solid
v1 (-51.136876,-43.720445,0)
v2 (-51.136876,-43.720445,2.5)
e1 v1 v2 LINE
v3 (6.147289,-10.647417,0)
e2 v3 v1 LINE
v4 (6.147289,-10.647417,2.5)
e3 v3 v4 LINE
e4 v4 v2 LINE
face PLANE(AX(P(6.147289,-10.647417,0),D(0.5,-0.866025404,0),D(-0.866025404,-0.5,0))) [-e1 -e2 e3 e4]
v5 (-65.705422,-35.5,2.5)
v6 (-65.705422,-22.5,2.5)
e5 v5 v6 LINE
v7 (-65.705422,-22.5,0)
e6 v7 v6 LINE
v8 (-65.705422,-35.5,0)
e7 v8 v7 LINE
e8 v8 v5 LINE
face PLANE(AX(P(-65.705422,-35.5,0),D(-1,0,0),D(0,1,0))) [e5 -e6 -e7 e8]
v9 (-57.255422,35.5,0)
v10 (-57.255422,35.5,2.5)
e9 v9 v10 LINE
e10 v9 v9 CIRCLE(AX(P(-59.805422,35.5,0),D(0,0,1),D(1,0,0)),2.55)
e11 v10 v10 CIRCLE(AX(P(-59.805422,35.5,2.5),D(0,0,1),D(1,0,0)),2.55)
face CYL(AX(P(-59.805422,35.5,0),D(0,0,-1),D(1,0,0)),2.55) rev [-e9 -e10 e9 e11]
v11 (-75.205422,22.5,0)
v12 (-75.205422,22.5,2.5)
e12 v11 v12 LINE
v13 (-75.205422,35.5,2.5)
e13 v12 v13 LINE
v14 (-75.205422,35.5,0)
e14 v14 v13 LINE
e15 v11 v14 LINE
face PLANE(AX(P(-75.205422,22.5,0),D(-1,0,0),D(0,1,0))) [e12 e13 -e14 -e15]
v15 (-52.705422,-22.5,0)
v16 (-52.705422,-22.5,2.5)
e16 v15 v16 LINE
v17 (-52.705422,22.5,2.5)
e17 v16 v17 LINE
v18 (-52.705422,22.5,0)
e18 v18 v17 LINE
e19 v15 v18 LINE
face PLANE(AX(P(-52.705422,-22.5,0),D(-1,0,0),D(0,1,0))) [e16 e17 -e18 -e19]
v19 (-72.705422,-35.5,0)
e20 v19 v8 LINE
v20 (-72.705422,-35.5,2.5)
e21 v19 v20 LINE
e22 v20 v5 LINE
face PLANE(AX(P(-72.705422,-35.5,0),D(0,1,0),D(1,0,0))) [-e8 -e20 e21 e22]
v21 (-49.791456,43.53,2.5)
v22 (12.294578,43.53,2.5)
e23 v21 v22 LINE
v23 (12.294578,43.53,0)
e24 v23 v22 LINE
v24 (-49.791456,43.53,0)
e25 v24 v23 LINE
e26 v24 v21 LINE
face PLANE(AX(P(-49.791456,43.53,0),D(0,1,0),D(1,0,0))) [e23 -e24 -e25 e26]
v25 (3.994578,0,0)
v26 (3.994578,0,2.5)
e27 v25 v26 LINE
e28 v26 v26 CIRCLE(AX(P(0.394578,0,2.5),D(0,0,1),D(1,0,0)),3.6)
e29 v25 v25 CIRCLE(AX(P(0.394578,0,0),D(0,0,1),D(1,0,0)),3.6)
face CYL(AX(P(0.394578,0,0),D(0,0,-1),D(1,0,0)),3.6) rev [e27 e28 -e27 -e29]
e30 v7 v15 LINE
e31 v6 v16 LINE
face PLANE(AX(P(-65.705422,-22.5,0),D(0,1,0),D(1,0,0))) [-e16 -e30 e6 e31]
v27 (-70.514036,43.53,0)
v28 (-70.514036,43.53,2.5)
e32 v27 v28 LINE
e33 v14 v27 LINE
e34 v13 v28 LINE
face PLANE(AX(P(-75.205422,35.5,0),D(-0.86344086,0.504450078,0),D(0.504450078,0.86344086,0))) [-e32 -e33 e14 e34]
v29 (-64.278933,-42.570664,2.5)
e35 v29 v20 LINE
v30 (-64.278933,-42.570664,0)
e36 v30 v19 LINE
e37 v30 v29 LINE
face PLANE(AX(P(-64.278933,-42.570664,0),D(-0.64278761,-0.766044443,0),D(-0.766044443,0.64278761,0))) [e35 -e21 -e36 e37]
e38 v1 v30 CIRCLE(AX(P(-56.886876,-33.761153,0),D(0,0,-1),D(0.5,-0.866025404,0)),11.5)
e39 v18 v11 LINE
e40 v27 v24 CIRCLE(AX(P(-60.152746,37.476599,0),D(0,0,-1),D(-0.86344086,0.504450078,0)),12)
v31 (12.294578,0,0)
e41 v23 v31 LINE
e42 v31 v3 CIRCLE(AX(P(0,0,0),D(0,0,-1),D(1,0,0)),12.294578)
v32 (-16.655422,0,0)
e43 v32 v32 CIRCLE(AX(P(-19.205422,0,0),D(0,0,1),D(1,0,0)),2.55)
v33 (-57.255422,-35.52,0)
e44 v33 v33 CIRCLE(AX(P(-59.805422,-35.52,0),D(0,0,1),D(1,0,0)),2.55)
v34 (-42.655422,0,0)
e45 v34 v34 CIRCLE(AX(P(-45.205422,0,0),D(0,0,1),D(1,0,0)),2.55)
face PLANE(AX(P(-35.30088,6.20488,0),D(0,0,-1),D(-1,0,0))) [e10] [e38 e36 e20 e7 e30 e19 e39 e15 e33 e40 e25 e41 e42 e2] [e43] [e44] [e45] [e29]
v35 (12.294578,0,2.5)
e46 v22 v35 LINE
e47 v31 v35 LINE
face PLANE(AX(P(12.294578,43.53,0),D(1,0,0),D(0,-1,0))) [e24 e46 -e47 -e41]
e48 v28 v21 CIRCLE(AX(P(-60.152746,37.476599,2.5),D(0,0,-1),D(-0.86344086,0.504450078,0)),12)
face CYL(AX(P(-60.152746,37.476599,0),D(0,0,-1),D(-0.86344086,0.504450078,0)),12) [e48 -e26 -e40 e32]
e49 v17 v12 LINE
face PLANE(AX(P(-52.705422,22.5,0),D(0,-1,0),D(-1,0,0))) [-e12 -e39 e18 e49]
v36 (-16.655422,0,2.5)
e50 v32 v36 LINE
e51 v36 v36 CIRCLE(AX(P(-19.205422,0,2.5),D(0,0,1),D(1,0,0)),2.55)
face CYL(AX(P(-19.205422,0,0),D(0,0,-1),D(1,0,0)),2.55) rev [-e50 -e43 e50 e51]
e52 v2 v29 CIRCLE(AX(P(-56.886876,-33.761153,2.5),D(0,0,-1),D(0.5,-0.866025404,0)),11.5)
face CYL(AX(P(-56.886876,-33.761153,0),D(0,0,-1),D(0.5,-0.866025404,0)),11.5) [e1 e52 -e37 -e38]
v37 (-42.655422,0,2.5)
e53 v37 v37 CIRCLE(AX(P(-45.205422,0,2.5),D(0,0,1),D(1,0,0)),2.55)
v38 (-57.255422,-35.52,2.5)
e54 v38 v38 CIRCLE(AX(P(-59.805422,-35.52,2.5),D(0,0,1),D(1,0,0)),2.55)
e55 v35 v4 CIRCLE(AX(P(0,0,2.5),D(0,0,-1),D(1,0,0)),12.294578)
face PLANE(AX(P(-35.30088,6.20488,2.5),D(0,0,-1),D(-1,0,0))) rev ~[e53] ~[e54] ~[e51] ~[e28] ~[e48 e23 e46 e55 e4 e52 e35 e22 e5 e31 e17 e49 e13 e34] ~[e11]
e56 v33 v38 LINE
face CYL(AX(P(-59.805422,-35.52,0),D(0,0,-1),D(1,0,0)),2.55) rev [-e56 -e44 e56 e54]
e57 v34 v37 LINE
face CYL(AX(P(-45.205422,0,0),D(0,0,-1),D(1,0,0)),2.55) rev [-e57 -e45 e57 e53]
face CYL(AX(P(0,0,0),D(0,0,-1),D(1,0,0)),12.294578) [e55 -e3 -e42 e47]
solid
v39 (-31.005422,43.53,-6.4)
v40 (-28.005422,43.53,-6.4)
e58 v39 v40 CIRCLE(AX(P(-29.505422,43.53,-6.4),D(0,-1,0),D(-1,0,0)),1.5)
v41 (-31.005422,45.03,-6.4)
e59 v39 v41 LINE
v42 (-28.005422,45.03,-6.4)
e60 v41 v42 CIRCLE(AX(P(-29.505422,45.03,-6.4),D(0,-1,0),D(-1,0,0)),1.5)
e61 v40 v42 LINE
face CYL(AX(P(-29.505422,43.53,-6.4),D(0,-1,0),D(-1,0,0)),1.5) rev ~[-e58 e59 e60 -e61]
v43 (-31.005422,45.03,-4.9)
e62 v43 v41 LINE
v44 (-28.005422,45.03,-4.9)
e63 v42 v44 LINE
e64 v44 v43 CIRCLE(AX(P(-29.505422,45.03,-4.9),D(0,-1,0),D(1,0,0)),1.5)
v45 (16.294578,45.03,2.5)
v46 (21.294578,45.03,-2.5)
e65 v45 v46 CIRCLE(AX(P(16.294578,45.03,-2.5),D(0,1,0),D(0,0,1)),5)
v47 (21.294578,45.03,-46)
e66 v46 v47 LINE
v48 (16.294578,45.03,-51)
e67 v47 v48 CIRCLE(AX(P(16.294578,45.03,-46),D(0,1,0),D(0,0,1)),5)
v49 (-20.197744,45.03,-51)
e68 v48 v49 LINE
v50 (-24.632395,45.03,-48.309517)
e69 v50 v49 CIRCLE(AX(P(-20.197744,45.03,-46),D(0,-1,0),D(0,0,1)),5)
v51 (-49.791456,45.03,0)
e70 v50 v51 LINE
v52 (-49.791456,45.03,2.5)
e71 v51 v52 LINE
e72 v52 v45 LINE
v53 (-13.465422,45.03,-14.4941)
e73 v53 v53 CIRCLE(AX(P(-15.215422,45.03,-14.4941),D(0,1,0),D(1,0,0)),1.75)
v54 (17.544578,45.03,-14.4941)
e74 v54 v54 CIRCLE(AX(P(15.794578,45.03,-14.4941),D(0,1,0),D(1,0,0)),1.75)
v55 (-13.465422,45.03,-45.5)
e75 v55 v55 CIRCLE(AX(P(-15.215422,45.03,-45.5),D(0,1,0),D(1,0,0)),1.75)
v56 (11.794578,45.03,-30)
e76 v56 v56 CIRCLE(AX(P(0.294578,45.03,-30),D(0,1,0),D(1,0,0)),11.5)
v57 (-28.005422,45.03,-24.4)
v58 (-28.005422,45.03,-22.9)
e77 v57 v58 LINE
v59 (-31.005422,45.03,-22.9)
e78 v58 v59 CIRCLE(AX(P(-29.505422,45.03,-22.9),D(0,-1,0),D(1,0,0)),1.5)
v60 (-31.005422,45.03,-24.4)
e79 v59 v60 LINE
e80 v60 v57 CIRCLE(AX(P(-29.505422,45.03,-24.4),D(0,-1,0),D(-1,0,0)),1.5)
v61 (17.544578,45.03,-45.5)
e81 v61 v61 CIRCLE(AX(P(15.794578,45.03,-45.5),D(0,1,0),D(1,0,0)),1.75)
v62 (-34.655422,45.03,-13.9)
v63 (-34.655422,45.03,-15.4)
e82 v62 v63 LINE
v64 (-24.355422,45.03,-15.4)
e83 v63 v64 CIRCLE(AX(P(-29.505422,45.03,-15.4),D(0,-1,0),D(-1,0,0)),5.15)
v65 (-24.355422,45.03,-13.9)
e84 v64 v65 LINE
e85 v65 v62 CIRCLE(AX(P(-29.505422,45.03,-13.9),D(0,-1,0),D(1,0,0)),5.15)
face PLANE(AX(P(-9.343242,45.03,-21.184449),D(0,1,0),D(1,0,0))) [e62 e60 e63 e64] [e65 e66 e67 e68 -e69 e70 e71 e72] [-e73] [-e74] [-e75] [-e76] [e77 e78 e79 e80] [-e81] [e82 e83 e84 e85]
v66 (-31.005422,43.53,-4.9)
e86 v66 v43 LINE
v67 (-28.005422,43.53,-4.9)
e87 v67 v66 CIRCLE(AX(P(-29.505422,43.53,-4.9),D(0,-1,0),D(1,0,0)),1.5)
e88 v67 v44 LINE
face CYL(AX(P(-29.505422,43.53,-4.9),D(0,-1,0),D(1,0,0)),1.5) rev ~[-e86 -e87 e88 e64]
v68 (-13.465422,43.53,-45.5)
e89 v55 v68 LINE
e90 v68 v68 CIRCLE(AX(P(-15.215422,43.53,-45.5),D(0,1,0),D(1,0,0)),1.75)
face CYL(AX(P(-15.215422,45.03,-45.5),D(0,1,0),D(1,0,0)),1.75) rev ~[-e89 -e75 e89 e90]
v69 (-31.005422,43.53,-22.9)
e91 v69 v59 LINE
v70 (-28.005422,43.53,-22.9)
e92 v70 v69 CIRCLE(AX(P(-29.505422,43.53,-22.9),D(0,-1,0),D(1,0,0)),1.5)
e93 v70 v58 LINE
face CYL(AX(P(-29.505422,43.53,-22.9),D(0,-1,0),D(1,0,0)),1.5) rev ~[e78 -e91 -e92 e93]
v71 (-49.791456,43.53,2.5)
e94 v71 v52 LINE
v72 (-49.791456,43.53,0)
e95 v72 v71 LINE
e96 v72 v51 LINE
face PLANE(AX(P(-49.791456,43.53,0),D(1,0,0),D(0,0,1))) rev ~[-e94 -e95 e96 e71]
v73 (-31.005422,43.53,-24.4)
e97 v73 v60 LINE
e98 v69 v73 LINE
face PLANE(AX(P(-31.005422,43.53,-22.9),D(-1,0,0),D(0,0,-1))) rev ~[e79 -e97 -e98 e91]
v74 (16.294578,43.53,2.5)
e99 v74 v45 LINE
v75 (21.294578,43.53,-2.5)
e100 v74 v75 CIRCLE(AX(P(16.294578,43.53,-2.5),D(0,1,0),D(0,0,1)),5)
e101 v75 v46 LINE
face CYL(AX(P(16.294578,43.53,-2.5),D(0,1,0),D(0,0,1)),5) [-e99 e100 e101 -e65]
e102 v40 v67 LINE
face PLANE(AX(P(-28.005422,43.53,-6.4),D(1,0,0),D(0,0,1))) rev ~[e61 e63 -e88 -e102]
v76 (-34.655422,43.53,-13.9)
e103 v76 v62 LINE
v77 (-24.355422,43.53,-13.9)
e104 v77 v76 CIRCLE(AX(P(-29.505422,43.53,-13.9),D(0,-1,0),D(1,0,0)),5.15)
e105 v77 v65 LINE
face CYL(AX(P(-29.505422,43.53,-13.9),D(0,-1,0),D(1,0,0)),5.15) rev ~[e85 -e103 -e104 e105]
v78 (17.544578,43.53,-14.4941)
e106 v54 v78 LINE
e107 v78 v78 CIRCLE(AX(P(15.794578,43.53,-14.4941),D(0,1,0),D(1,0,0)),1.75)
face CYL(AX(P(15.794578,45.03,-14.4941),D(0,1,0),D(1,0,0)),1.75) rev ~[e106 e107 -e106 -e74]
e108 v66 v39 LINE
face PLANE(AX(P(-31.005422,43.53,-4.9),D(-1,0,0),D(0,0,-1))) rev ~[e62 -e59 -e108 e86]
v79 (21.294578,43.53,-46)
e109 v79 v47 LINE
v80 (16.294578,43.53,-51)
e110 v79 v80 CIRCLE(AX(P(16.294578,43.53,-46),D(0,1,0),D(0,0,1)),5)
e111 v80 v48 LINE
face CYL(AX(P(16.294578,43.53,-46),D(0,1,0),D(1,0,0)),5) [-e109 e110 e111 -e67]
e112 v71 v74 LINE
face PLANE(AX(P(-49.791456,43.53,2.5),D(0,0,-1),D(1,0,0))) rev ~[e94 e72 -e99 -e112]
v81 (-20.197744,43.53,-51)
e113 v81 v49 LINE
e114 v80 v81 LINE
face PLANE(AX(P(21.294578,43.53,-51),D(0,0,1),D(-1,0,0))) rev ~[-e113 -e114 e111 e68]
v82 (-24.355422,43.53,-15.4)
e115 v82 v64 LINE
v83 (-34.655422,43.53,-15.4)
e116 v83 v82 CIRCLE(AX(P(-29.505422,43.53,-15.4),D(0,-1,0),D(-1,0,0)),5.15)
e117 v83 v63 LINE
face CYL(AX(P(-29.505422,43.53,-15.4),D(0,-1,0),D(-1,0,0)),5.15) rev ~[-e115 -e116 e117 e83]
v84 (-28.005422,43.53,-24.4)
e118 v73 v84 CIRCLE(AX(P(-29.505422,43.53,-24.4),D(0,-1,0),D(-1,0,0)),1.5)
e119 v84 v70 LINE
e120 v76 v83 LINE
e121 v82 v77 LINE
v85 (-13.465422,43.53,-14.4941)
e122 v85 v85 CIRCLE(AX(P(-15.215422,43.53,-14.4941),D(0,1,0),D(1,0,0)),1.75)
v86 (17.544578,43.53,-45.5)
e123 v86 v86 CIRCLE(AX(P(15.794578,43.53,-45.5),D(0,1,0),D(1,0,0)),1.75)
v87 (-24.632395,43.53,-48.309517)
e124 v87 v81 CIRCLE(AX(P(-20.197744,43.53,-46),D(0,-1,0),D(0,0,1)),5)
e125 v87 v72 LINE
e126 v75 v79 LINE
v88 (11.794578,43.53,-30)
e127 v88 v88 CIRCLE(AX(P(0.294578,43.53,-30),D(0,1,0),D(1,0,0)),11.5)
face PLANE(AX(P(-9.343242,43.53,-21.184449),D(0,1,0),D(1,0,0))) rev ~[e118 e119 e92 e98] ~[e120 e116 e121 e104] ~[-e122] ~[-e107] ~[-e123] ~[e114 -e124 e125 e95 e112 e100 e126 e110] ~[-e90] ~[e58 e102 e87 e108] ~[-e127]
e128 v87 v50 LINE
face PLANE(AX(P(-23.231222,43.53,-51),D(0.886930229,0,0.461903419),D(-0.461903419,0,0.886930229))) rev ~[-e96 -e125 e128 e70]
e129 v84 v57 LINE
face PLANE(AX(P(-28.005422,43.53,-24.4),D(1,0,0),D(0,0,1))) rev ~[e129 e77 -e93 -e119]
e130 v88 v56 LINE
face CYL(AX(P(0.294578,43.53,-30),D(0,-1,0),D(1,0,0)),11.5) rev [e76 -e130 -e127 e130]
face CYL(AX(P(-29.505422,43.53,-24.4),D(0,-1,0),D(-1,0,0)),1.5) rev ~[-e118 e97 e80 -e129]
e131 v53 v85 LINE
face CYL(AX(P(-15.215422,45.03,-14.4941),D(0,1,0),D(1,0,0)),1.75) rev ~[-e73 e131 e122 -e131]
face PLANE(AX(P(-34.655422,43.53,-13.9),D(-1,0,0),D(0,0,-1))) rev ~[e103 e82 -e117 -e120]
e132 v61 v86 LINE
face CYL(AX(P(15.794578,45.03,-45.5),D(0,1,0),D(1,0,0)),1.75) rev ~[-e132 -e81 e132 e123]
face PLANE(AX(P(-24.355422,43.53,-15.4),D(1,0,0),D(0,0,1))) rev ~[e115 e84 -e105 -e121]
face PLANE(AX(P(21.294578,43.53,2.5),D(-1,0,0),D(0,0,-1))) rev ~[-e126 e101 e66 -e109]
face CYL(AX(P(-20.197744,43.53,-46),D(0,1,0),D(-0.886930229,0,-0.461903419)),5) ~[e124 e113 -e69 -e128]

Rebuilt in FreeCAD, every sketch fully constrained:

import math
import FreeCAD as App
import Part
import Sketcher

V = App.Vector
Q = App.Units.Quantity


def edges_at(feature, points):
    """Names of the edges that pass closest to the given points."""
    edges = feature.Shape.Edges
    near = lambda p: min(range(len(edges)), key=lambda i: edges[i].distToShape(Part.Vertex(*p))[0])
    return sorted({f"Edge{near(p) + 1}" for p in points})


def add_polygon(sketch, points):
    """Adds a closed chain of lines whose ends are joined by coincident constraints."""
    first, n = sketch.GeometryCount, len(points)
    for a, b in zip(points, points[1:] + points[:1]):
        sketch.addGeometry(Part.LineSegment(App.Vector(*a, 0), App.Vector(*b, 0)), False)
    for i in range(n):
        sketch.addConstraint(Sketcher.Constraint("Coincident", first + i, 2, first + (i + 1) % n, 1))

doc = App.newDocument("Part")
body = doc.addObject("PartDesign::Body", "Body")

sketch1 = body.newObject("Sketcher::SketchObject", "Sketch")
sketch1.AttachmentSupport = (doc.getObject("XY_Plane"), [""])
sketch1.MapMode = "FlatFace"
sketch1.addGeometry([
    Part.LineSegment(V(-70.514036, 43.53, 0), V(-75.205422, 35.5, 0)),
    Part.LineSegment(V(-75.205422, 35.5, 0), V(-75.205422, 22.5, 0)),
    Part.LineSegment(V(-75.205422, 22.5, 0), V(-52.705422, 22.5, 0)),
    Part.LineSegment(V(-52.705422, 22.5, 0), V(-52.705422, -22.5, 0)),
    Part.LineSegment(V(-52.705422, -22.5, 0), V(-65.705422, -22.5, 0)),
    Part.LineSegment(V(-65.705422, -22.5, 0), V(-65.705422, -35.5, 0)),
    Part.LineSegment(V(-65.705422, -35.5, 0), V(-72.705422, -35.5, 0)),
    Part.LineSegment(V(-72.705422, -35.5, 0), V(-64.278933, -42.570664, 0)),
    Part.ArcOfCircle(Part.Circle(V(-56.886876, -33.761153, 0), V(0, 0, 1), 11.5), math.radians(-130), math.radians(-60)),
    Part.LineSegment(V(-51.136876, -43.720445, 0), V(6.147289, -10.647417, 0)),
    Part.ArcOfCircle(Part.Circle(V(0, 0, 0), V(0, 0, 1), 12.294578), math.radians(-60), math.radians(0)),
    Part.LineSegment(V(12.294578, 0, 0), V(12.294578, 43.53, 0)),
    Part.LineSegment(V(12.294578, 43.53, 0), V(-49.791456, 43.53, 0)),
    Part.ArcOfCircle(Part.Circle(V(-60.152746, 37.476599, 0), V(0, 0, 1), 12), math.radians(30.294854), math.radians(149.705146)),
    Part.Circle(V(-59.805422, -35.52, 0), V(0, 0, 1), 2.55),
    Part.Circle(V(0.394578, 0, 0), V(0, 0, 1), 3.6),
    Part.Circle(V(-19.205422, 0, 0), V(0, 0, 1), 2.55),
    Part.Circle(V(-45.205422, 0, 0), V(0, 0, 1), 2.55),
    Part.Circle(V(-59.805422, 35.5, 0), V(0, 0, 1), 2.55),
], False)
sketch1.addConstraint([
    Sketcher.Constraint("Coincident", 0, 2, 1, 1),
    Sketcher.Constraint("Coincident", 1, 2, 2, 1),
    Sketcher.Constraint("Coincident", 2, 2, 3, 1),
    Sketcher.Constraint("Coincident", 3, 2, 4, 1),
    Sketcher.Constraint("Coincident", 4, 2, 5, 1),
    Sketcher.Constraint("Coincident", 5, 2, 6, 1),
    Sketcher.Constraint("Coincident", 6, 2, 7, 1),
    Sketcher.Constraint("Tangent", 7, 2, 8, 1),
    Sketcher.Constraint("Tangent", 8, 2, 9, 1),
    Sketcher.Constraint("Tangent", 9, 2, 10, 1),
    Sketcher.Constraint("Tangent", 10, 2, 11, 1),
    Sketcher.Constraint("Coincident", 11, 2, 12, 1),
    Sketcher.Constraint("Coincident", 12, 2, 13, 1),
    Sketcher.Constraint("Tangent", 13, 2, 0, 1),
    Sketcher.Constraint("Vertical", 1),
    Sketcher.Constraint("Horizontal", 2),
    Sketcher.Constraint("Vertical", 3),
    Sketcher.Constraint("Horizontal", 4),
    Sketcher.Constraint("Vertical", 5),
    Sketcher.Constraint("Horizontal", 6),
    Sketcher.Constraint("Vertical", 11),
    Sketcher.Constraint("Horizontal", 12),
    Sketcher.Constraint("Coincident", 10, 3, -1, 1),
    Sketcher.Constraint("Equal", 14, 16),
    Sketcher.Constraint("Equal", 16, 17),
    Sketcher.Constraint("Equal", 17, 18),
    Sketcher.Constraint("PointOnObject", 15, 3, -1),
    Sketcher.Constraint("PointOnObject", 16, 3, -1),
    Sketcher.Constraint("PointOnObject", 17, 3, -1),
    Sketcher.Constraint("Horizontal", 18, 3, 0, 2),
    Sketcher.Constraint("Horizontal", 12, 2, 13, 2),
    Sketcher.Constraint("Vertical", 14, 3, 18, 3),
    Sketcher.Constraint("Equal", 4, 1),
    Sketcher.Constraint("Equal", 1, 5),
    Sketcher.Constraint("Radius", 13, 12.0),
    Sketcher.Constraint("Diameter", 14, 5.1),
    Sketcher.Constraint("Diameter", 15, 7.2),
    Sketcher.Constraint("Radius", 8, 11.5),
    Sketcher.Constraint("DistanceX", 4, 2, 4, 1, 13.0),
    Sketcher.Constraint("DistanceX", 6, 2, 6, 1, 7.0),
    Sketcher.Constraint("DistanceY", 3, 2, 3, 1, 45.0),
    Sketcher.Constraint("Angle", 7, Q("-40 deg")),
    Sketcher.Constraint("Angle", 9, Q("30 deg")),
    Sketcher.Constraint("Distance", 7, 11.0),
    Sketcher.Constraint("DistanceX", 2, 1, 2, 2, 22.5),
    Sketcher.Constraint("DistanceX", 17, 3, 16, 3, 26.0),
    Sketcher.Constraint("DistanceX", 0, 2, 17, 3, 30.0),
    Sketcher.Constraint("Distance", 0, 9.3),
    Sketcher.Constraint("DistanceY", 11, 1, 11, 2, 43.53),
    Sketcher.Constraint("DistanceY", -1, 1, 18, 3, 35.5),
    Sketcher.Constraint("DistanceX", 14, 3, 15, 3, 60.2),
    Sketcher.Constraint("DistanceX", 16, 3, 15, 3, 19.6),
    Sketcher.Constraint("DistanceX", 15, 3, 10, 2, 11.9),
    Sketcher.Constraint("DistanceY", 14, 3, -1, 1, 35.52),
])
pad1 = body.newObject("PartDesign::Pad", "Pad")
pad1.Profile = sketch1
pad1.Length = 2.5
body2 = doc.addObject("PartDesign::Body", "Body001")

sketch2 = body2.newObject("Sketcher::SketchObject", "Sketch001")
sketch2.AttachmentSupport = (doc.getObject("XZ_Plane001"), [""])
sketch2.MapMode = "FlatFace"
sketch2.AttachmentOffset = App.Placement(V(0, 0, -43.53), App.Rotation())
add_polygon(sketch2, [(-49.791456, 2.5), (21.294578, 2.5), (21.294578, -51), (-23.231222, -51), (-49.791456, 0)])
sketch2.addGeometry(Part.ArcOfCircle(Part.Circle(V(-29.505422, -6.4, 0), V(0, 0, 1), 1.5), math.radians(180), math.radians(360)), False)
sketch2.addGeometry(Part.LineSegment(V(-28.005422, -6.4, 0), V(-28.005422, -4.9, 0)), False)
sketch2.addGeometry(Part.ArcOfCircle(Part.Circle(V(-29.505422, -4.9, 0), V(0, 0, 1), 1.5), math.radians(0), math.radians(180)), False)
sketch2.addGeometry(Part.LineSegment(V(-31.005422, -4.9, 0), V(-31.005422, -6.4, 0)), False)
sketch2.addGeometry(Part.ArcOfCircle(Part.Circle(V(-29.505422, -15.4, 0), V(0, 0, 1), 5.15), math.radians(180), math.radians(360)), False)
sketch2.addGeometry(Part.LineSegment(V(-24.355422, -15.4, 0), V(-24.355422, -13.9, 0)), False)
sketch2.addGeometry(Part.ArcOfCircle(Part.Circle(V(-29.505422, -13.9, 0), V(0, 0, 1), 5.15), math.radians(0), math.radians(180)), False)
sketch2.addGeometry(Part.LineSegment(V(-34.655422, -13.9, 0), V(-34.655422, -15.4, 0)), False)
sketch2.addGeometry(Part.ArcOfCircle(Part.Circle(V(-29.505422, -24.4, 0), V(0, 0, 1), 1.5), math.radians(180), math.radians(360)), False)
sketch2.addGeometry(Part.LineSegment(V(-28.005422, -24.4, 0), V(-28.005422, -22.9, 0)), False)
sketch2.addGeometry(Part.ArcOfCircle(Part.Circle(V(-29.505422, -22.9, 0), V(0, 0, 1), 1.5), math.radians(0), math.radians(180)), False)
sketch2.addGeometry(Part.LineSegment(V(-31.005422, -22.9, 0), V(-31.005422, -24.4, 0)), False)
sketch2.addGeometry(Part.Circle(V(0.294578, -30, 0), V(0, 0, 1), 11.5), False)
sketch2.addConstraint([
    Sketcher.Constraint("Tangent", 5, 2, 6, 1),
    Sketcher.Constraint("Tangent", 6, 2, 7, 1),
    Sketcher.Constraint("Tangent", 7, 2, 8, 1),
    Sketcher.Constraint("Tangent", 8, 2, 5, 1),
    Sketcher.Constraint("Tangent", 9, 2, 10, 1),
    Sketcher.Constraint("Tangent", 10, 2, 11, 1),
    Sketcher.Constraint("Tangent", 11, 2, 12, 1),
    Sketcher.Constraint("Tangent", 12, 2, 9, 1),
    Sketcher.Constraint("Tangent", 13, 2, 14, 1),
    Sketcher.Constraint("Tangent", 14, 2, 15, 1),
    Sketcher.Constraint("Tangent", 15, 2, 16, 1),
    Sketcher.Constraint("Tangent", 16, 2, 13, 1),
    Sketcher.Constraint("Horizontal", 0),
    Sketcher.Constraint("Vertical", 1),
    Sketcher.Constraint("Horizontal", 2),
    Sketcher.Constraint("Vertical", 4),
    Sketcher.Constraint("Vertical", 6),
    Sketcher.Constraint("Vertical", 8),
    Sketcher.Constraint("Vertical", 10),
    Sketcher.Constraint("Vertical", 12),
    Sketcher.Constraint("Vertical", 14),
    Sketcher.Constraint("Vertical", 16),
    Sketcher.Constraint("Equal", 7, 13),
    Sketcher.Constraint("PointOnObject", 3, 2, -1),
    Sketcher.Constraint("Vertical", 7, 3, 9, 3),
    Sketcher.Constraint("Vertical", 11, 3, 13, 3),
    Sketcher.Constraint("Equal", 8, 10),
    Sketcher.Constraint("Equal", 12, 14),
    Sketcher.Constraint("Diameter", 17, 23.0),
    Sketcher.Constraint("Radius", 5, 1.5),
    Sketcher.Constraint("Radius", 9, 5.15),
    Sketcher.Constraint("DistanceY", 1, 2, 1, 1, 53.5),
    Sketcher.Constraint("DistanceY", 4, 1, 4, 2, 2.5),
    Sketcher.Constraint("DistanceY", 6, 1, 6, 2, 1.5),
    Sketcher.Constraint("DistanceY", 17, 3, -1, 1, 30.0),
    Sketcher.Constraint("DistanceY", 9, 3, 5, 3, 9.0),
    Sketcher.Constraint("DistanceY", 13, 3, 9, 3, 9.0),
    Sketcher.Constraint("DistanceX", 17, 3, 0, 2, 21.0),
    Sketcher.Constraint("DistanceY", 5, 3, -1, 1, 6.4),
    Sketcher.Constraint("Angle", 3, Q("117.51 deg")),
    Sketcher.Constraint("DistanceX", 13, 3, 17, 3, 29.8),
    Sketcher.Constraint("DistanceX", 2, 2, 2, 1, 44.5258),
    Sketcher.Constraint("DistanceX", 5, 3, -1, 1, 29.505422),
])
pad2 = body2.newObject("PartDesign::Pad", "Pad001")
pad2.Profile = sketch2
pad2.Length = 1.5
pad2.Reversed = True

sketch3 = body2.newObject("Sketcher::SketchObject", "Sketch002")
sketch3.AttachmentSupport = (doc.getObject("XZ_Plane001"), [""])
sketch3.MapMode = "FlatFace"
sketch3.AttachmentOffset = App.Placement(V(0, 0, -45.03), App.Rotation())
sketch3.addGeometry([
    Part.Circle(V(-15.215422, -45.5, 0), V(0, 0, 1), 1.75),
    Part.Circle(V(-15.215422, -14.4941, 0), V(0, 0, 1), 1.75),
    Part.Circle(V(15.794578, -45.5, 0), V(0, 0, 1), 1.75),
    Part.Circle(V(15.794578, -14.4941, 0), V(0, 0, 1), 1.75),
], False)
sketch3.addConstraint([
    Sketcher.Constraint("Equal", 0, 1),
    Sketcher.Constraint("Equal", 1, 2),
    Sketcher.Constraint("Equal", 2, 3),
    Sketcher.Constraint("Horizontal", 0, 3, 2, 3),
    Sketcher.Constraint("Horizontal", 1, 3, 3, 3),
    Sketcher.Constraint("Vertical", 0, 3, 1, 3),
    Sketcher.Constraint("Vertical", 2, 3, 3, 3),
    Sketcher.Constraint("Diameter", 0, 3.5),
    Sketcher.Constraint("DistanceY", 0, 3, -1, 1, 45.5),
    Sketcher.Constraint("DistanceX", 0, 3, 2, 3, 31.01),
    Sketcher.Constraint("DistanceY", 1, 3, -1, 1, 14.4941),
    Sketcher.Constraint("DistanceX", 0, 3, -1, 1, 15.215422),
])
pocket1 = body2.newObject("PartDesign::Pocket", "Pocket")
pocket1.Profile = sketch3
pocket1.Type = "ThroughAll"
pocket1.Reversed = True
doc.recompute()

fillet = body2.newObject("PartDesign::Fillet", "Fillet")
fillet.Base = (pocket1, edges_at(pocket1, [(-23.231, 44.28, -51), (21.295, 44.28, -51), (21.295, 44.28, 2.5)]))
fillet.Radius = 5

doc.recompute()
